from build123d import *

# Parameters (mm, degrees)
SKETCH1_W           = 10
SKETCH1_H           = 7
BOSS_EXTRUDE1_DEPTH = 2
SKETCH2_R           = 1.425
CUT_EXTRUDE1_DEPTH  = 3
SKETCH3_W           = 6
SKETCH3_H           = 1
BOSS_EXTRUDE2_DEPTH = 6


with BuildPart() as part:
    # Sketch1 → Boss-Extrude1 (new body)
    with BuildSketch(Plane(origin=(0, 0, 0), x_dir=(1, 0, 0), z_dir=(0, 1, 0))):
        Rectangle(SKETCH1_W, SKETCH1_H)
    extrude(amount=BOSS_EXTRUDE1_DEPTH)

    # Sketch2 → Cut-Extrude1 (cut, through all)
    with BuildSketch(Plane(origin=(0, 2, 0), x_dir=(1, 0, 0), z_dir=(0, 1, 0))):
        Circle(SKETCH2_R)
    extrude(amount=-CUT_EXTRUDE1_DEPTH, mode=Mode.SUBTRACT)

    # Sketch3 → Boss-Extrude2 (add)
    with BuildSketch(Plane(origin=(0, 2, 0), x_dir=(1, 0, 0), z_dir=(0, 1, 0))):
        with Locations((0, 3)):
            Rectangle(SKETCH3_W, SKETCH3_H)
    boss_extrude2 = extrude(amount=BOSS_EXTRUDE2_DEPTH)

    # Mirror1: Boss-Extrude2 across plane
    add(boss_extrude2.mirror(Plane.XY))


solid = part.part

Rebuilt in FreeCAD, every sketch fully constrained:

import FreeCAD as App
import Part
import Sketcher
from FreeCAD import Vector


def add_polygon(sketch, points):
    """Adds a closed chain of lines whose ends are joined by coincident constraints."""
    first, n = sketch.GeometryCount, len(points)
    for a, b in zip(points, points[1:] + points[:1]):
        sketch.addGeometry(Part.LineSegment(App.Vector(*a, 0), App.Vector(*b, 0)), False)
    for i in range(n):
        sketch.addConstraint(Sketcher.Constraint("Coincident", first + i, 2, first + (i + 1) % n, 1))

doc = App.newDocument("Part")
body = doc.addObject("PartDesign::Body", "Body")

sketch1 = body.newObject("Sketcher::SketchObject", "Sketch")
sketch1.AttachmentSupport = (doc.getObject("XZ_Plane"), [""])
sketch1.MapMode = "FlatFace"
add_polygon(sketch1, [(-5, -4), (-5, 4), (5, 4), (5, -4)])
sketch1.addConstraint(Sketcher.Constraint("Vertical", 0))
sketch1.addConstraint(Sketcher.Constraint("Horizontal", 1))
sketch1.addConstraint(Sketcher.Constraint("Vertical", 2))
sketch1.addConstraint(Sketcher.Constraint("Horizontal", 3))
sketch1.addConstraint(Sketcher.Constraint("Symmetric", 0, 2, 2, 2, -1, 1))
sketch1.addConstraint(Sketcher.Constraint("DistanceX", 1, 1, 1, 2, 10.0))
sketch1.addConstraint(Sketcher.Constraint("DistanceY", 0, 1, 0, 2, 7.0))
pad1 = body.newObject("PartDesign::Pad", "Pad")
pad1.Profile = sketch1
pad1.Length = 2
pad1.Reversed = True

sketch2 = body.newObject("Sketcher::SketchObject", "Sketch001")
sketch2.AttachmentSupport = (doc.getObject("XZ_Plane"), [""])
sketch2.MapMode = "FlatFace"
sketch2.AttachmentOffset = App.Placement(Vector(0, 0, -2), App.Rotation())
sketch2.addGeometry(Part.Circle(Vector(0, 0, 0), Vector(0, 0, 1), 1.4), False)
sketch2.addConstraint(Sketcher.Constraint("Coincident", 0, 3, -1, 1))
sketch2.addConstraint(Sketcher.Constraint("Diameter", 0, 2.85))
pocket1 = body.newObject("PartDesign::Pocket", "Pocket")
pocket1.Profile = sketch2
pocket1.Type = "ThroughAll"
pocket1.Reversed = True

sketch3 = body.newObject("Sketcher::SketchObject", "Sketch002")
sketch3.AttachmentSupport = (doc.getObject("XZ_Plane"), [""])
sketch3.MapMode = "FlatFace"
sketch3.AttachmentOffset = App.Placement(Vector(0, 0, -2), App.Rotation())
add_polygon(sketch3, [(-3, -3.5), (-3, -2.5), (3, -2.5), (3, -3.5)])
sketch3.addConstraint(Sketcher.Constraint("Vertical", 0))
sketch3.addConstraint(Sketcher.Constraint("Horizontal", 1))
sketch3.addConstraint(Sketcher.Constraint("Vertical", 2))
sketch3.addConstraint(Sketcher.Constraint("Horizontal", 3))
sketch3.addConstraint(Sketcher.Constraint("DistanceX", 1, 1, 1, 2, 6.0))
sketch3.addConstraint(Sketcher.Constraint("DistanceY", 0, 1, 0, 2, 1.0))
sketch3.addConstraint(Sketcher.Constraint("DistanceX", 0, 2, -1, 1, 3.0))
sketch3.addConstraint(Sketcher.Constraint("DistanceY", 0, 2, -1, 1, 2.5))
pad2 = body.newObject("PartDesign::Pad", "Pad001")
pad2.Profile = sketch3
pad2.Length = 6
pad2.Reversed = True
doc.recompute()

mirrored = body.newObject("PartDesign::Mirrored", "Mirrored")
mirrored.Originals = [pad2]
mirrored.MirrorPlane = (doc.getObject("XY_Plane"), [""])
body.Tip = mirrored

doc.recompute()
